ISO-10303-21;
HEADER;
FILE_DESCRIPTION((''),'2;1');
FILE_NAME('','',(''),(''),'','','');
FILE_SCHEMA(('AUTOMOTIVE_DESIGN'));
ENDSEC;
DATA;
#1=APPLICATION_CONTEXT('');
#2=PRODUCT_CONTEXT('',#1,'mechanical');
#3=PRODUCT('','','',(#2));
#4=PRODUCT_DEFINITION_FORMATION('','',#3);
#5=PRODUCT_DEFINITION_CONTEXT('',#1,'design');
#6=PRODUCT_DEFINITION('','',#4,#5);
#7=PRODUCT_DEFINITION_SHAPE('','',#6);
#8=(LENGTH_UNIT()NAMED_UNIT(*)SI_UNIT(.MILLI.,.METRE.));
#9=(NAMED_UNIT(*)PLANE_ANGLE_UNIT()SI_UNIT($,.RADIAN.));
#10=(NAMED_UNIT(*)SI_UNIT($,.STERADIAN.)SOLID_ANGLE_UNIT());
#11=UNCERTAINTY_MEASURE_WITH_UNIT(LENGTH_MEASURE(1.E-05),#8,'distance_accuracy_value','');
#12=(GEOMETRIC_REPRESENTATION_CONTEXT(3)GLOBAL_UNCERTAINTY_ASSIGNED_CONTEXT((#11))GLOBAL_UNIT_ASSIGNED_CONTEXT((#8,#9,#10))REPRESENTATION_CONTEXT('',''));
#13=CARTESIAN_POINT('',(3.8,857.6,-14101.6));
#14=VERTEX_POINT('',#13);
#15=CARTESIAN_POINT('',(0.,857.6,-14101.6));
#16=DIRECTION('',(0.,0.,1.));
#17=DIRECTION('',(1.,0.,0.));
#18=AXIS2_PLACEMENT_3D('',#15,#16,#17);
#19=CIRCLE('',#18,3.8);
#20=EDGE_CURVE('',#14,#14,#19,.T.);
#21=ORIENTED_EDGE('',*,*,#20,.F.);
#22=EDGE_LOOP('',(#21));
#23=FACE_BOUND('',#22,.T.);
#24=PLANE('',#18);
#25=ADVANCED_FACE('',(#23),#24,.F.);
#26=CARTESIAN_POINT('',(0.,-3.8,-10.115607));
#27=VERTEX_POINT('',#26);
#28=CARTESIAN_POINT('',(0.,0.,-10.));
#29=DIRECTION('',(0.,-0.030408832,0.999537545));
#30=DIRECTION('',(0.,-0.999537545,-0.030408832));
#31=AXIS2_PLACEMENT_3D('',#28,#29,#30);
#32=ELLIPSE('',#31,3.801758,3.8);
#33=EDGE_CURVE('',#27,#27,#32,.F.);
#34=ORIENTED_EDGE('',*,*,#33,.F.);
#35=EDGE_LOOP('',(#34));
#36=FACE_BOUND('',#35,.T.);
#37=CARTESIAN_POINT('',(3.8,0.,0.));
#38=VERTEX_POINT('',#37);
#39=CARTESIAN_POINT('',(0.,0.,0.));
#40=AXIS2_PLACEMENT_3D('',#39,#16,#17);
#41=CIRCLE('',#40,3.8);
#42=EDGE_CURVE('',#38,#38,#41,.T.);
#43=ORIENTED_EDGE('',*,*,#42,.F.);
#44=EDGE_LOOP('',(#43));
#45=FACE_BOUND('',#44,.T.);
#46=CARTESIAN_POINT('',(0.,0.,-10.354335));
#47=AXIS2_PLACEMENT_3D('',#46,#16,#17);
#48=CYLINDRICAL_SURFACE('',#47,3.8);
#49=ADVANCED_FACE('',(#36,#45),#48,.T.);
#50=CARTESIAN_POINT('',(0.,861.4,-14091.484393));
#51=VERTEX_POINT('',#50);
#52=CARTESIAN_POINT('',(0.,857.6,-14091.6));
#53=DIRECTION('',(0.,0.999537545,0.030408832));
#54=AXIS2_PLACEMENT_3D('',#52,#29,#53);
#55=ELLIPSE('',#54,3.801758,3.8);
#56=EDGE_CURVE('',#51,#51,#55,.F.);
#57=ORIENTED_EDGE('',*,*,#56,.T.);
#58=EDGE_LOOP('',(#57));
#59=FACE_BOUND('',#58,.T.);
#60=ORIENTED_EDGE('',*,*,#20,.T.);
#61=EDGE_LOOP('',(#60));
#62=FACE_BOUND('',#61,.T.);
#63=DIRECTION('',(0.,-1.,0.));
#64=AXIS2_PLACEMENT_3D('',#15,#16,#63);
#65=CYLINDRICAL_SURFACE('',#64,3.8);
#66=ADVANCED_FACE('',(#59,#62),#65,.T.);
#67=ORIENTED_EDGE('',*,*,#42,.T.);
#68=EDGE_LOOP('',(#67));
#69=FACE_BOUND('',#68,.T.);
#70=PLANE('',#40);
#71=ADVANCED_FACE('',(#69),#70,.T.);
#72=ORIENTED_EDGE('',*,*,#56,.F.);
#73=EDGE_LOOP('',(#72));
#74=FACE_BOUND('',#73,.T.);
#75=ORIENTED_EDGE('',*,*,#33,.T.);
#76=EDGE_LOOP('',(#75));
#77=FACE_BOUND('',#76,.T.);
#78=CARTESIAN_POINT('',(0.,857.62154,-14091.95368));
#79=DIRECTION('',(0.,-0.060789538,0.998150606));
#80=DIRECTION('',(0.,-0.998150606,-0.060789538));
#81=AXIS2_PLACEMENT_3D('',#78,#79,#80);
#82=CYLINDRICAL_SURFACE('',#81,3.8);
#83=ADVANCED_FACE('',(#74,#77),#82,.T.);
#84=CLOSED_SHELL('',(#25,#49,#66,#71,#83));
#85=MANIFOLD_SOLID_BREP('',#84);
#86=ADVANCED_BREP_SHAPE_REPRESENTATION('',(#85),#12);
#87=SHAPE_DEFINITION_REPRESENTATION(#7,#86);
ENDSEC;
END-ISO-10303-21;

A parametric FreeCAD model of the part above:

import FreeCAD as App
import Part
import Sketcher
from FreeCAD import Vector
Q = App.Units.Quantity

doc = App.newDocument("Part")
body = doc.addObject("PartDesign::Body", "Body")

sketch1 = body.newObject("Sketcher::SketchObject", "Sketch")
sketch1.AttachmentSupport = (doc.getObject("XY_Plane"), [""])
sketch1.MapMode = "FlatFace"
sketch1.addGeometry(Part.Circle(Vector(0, 0, 0), Vector(0, 0, 1), 3.8), False)
sketch1.addConstraint([
    Sketcher.Constraint("Coincident", 0, 3, -1, 1),
    Sketcher.Constraint("Diameter", 0, Q("7.6 mm")),
])

sketch2 = body.newObject("Sketcher::SketchObject", "Sketch001")
sketch2.AttachmentSupport = (doc.getObject("YZ_Plane"), [""])
sketch2.MapMode = "FlatFace"
sketch2.addGeometry([
    Part.LineSegment(Vector(858, -14102, 0), Vector(858, -14092, 0)),
    Part.LineSegment(Vector(858, -14092, 0), Vector(0, -10, 0)),
    Part.LineSegment(Vector(0, -10, 0), Vector(0, 0, 0)),
], False)
sketch2.addConstraint([
    Sketcher.Constraint("Coincident", 0, 2, 1, 1),
    Sketcher.Constraint("Coincident", 1, 2, 2, 1),
    Sketcher.Constraint("Vertical", 0),
    Sketcher.Constraint("Vertical", 2),
    Sketcher.Constraint("Coincident", 2, 2, -1, 1),
    Sketcher.Constraint("Equal", 0, 2),
    Sketcher.Constraint("DistanceY", 0, 1, 0, 2, Q("10 mm")),
    Sketcher.Constraint("DistanceX", -1, 1, 0, 1, Q("857.6 mm")),
    Sketcher.Constraint("DistanceY", 0, 1, -1, 1, Q("14101.6 mm")),
])
doc.recompute()

additivepipe = body.newObject("PartDesign::AdditivePipe", "AdditivePipe")
additivepipe.Profile = sketch1
additivepipe.Spine = (sketch2, ["Edge1", "Edge2", "Edge3"])
additivepipe.Transition = "Right corner"

doc.recompute()
